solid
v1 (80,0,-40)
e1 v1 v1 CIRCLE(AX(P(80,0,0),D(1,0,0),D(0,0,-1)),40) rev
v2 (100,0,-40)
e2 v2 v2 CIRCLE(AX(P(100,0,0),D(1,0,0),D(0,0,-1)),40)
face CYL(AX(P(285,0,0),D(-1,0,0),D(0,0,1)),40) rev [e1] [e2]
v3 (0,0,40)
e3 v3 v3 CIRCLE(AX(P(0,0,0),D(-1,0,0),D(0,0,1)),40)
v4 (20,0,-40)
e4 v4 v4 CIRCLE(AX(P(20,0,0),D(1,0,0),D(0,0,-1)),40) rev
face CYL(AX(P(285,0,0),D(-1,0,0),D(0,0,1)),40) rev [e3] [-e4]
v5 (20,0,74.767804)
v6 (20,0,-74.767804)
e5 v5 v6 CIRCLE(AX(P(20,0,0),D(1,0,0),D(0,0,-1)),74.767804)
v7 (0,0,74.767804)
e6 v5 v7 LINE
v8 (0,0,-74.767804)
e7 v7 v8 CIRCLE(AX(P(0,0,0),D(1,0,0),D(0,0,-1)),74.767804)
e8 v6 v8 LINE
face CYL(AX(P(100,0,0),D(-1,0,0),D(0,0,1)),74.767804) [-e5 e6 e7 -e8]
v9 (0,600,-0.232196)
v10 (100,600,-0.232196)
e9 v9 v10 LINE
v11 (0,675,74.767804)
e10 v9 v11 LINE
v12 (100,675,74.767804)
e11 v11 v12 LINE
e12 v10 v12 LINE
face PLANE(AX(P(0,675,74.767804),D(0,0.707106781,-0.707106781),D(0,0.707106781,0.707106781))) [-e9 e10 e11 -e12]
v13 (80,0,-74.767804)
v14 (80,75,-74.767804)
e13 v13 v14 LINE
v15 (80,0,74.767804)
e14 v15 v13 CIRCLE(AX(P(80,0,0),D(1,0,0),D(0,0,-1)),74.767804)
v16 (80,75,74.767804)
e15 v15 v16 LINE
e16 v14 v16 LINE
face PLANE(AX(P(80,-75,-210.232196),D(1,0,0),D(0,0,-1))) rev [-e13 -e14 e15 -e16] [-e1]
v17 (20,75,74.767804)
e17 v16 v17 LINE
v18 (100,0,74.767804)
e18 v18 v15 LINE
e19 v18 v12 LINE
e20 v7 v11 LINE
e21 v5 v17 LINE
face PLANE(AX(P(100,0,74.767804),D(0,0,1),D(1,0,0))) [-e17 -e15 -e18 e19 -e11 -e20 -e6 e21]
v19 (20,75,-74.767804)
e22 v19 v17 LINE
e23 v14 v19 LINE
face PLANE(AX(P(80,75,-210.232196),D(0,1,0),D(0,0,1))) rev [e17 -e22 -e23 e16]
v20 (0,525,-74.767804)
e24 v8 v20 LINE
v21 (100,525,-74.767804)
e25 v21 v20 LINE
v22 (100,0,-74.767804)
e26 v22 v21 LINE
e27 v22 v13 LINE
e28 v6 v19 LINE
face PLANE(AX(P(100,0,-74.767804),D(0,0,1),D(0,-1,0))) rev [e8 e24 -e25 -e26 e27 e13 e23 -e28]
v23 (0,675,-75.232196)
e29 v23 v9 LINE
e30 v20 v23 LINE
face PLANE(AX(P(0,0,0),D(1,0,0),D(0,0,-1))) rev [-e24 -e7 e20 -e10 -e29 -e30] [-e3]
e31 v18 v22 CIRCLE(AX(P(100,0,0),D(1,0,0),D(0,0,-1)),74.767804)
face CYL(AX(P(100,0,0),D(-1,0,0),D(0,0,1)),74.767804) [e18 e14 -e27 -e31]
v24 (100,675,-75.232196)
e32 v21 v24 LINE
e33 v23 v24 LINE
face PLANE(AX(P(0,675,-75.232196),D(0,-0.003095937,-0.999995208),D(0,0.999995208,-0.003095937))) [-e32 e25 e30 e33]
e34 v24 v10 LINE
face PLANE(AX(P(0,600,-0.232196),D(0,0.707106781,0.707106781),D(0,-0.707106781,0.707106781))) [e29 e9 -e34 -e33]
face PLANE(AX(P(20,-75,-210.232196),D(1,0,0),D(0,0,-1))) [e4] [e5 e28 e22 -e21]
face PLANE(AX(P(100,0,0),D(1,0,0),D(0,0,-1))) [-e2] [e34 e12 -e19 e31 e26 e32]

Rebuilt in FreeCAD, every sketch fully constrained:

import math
import FreeCAD as App
import Part
import Sketcher

doc = App.newDocument("Part")
params = doc.addObject("Spreadsheet::Sheet", "Params")
for row, (alias, value) in enumerate([
    ("sketch1_width", "600 mm"),
    ("pad1_length", "100 mm"),
    ("sketch2_width", "75 mm"),
    ("pocket1_length", "20 mm"),
    ("sketch3_width", "75 mm"),
    ("pocket2_length", "20 mm"),
    ("sketch4_diameter", "80 mm"),
    ("pad2_length", "20 mm"),
    ("sketch5_diameter", "80 mm"),
    ("pad3_length", "20 mm"),
    ("sketch6_diameter", "80 mm"),
    ("pocket3_length", "285 mm"),
    ("sketch7_width", "60 mm"),
    ("sketch7_height", "150 mm"),
    ("pocket4_length", "285 mm"),
    ("sketch8_width", "100 mm"),
    ("pocket5_length", "285 mm"),
    ("sketch9_width", "150 mm"),
    ("pad4_length", "100 mm"),
], start=1):
    params.set(f"A{row}", alias)
    params.set(f"B{row}", "=" + value)
    params.setAlias(f"B{row}", alias)

body = doc.addObject("PartDesign::Body", "Body")

# Sketch on YZ plane
sketch1 = body.newObject("Sketcher::SketchObject", "Sketch")
sketch1.AttachmentSupport = (doc.getObject("YZ_Plane"), [""])
sketch1.MapMode = "FlatFace"
sketch1.addGeometry(Part.LineSegment(App.Vector(600, 75, 0), App.Vector(0, 75, 0)), False)
sketch1.addGeometry(Part.ArcOfCircle(Part.Circle(App.Vector(0, 0, 0), App.Vector(0, 0, 1), 75), math.radians(90), math.radians(270)), False)
sketch1.addGeometry(Part.LineSegment(App.Vector(0, -75, 0), App.Vector(600, -75, 0)), False)
sketch1.addGeometry(Part.ArcOfCircle(Part.Circle(App.Vector(600, 0, 0), App.Vector(0, 0, 1), 75), math.radians(-90), math.radians(90)), False)
sketch1.addConstraint(Sketcher.Constraint("Tangent", 0, 2, 1, 1))
sketch1.addConstraint(Sketcher.Constraint("Tangent", 1, 2, 2, 1))
sketch1.addConstraint(Sketcher.Constraint("Tangent", 2, 2, 3, 1))
sketch1.addConstraint(Sketcher.Constraint("Tangent", 3, 2, 0, 1))
sketch1.addConstraint(Sketcher.Constraint("Horizontal", 0))
sketch1.addConstraint(Sketcher.Constraint("Horizontal", 2))
sketch1.addConstraint(Sketcher.Constraint("Coincident", 1, 3, -1, 1))
sketch1.addConstraint(Sketcher.Constraint("DistanceX", 0, 2, 0, 1, 600.0))
sketch1.addConstraint(Sketcher.Constraint("Radius", 1, 74.767804))
sketch1.setExpression("Constraints[7]", "Params.sketch1_width")
pad1 = body.newObject("PartDesign::Pad", "Pad")
pad1.Profile = sketch1
pad1.setExpression("Length", "Params.pad1_length")

# Sketch on YZ plane
sketch2 = body.newObject("Sketcher::SketchObject", "Sketch001")
sketch2.AttachmentSupport = (doc.getObject("YZ_Plane"), [""])
sketch2.MapMode = "FlatFace"
sketch2.addGeometry(Part.LineSegment(App.Vector(600, -75, 0), App.Vector(525, -75, 0)), False)
sketch2.addGeometry(Part.LineSegment(App.Vector(525, -75, 0), App.Vector(525, 75, 0)), False)
sketch2.addGeometry(Part.LineSegment(App.Vector(525, 75, 0), App.Vector(600, 75, 0)), False)
sketch2.addGeometry(Part.ArcOfCircle(Part.Circle(App.Vector(600, 0, 0), App.Vector(0, 0, 1), 75), math.radians(-90), math.radians(90)), False)
sketch2.addConstraint(Sketcher.Constraint("Coincident", 0, 2, 1, 1))
sketch2.addConstraint(Sketcher.Constraint("Coincident", 1, 2, 2, 1))
sketch2.addConstraint(Sketcher.Constraint("Tangent", 2, 2, 3, 2))
sketch2.addConstraint(Sketcher.Constraint("Tangent", 3, 1, 0, 1))
sketch2.addConstraint(Sketcher.Constraint("Horizontal", 0))
sketch2.addConstraint(Sketcher.Constraint("Vertical", 1))
sketch2.addConstraint(Sketcher.Constraint("Horizontal", 2))
sketch2.addConstraint(Sketcher.Constraint("PointOnObject", 3, 3, -1))
sketch2.addConstraint(Sketcher.Constraint("DistanceX", 0, 2, 0, 1, 75.0))
sketch2.addConstraint(Sketcher.Constraint("DistanceX", -1, 1, 3, 3, 600.0))
sketch2.addConstraint(Sketcher.Constraint("Radius", 3, 74.767804))
sketch2.setExpression("Constraints[8]", "Params.sketch2_width")
pocket1 = body.newObject("PartDesign::Pocket", "Pocket")
pocket1.Profile = sketch2
pocket1.setExpression("Length", "Params.pocket1_length")
pocket1.Reversed = True

# Sketch on YZ plane
sketch3 = body.newObject("Sketcher::SketchObject", "Sketch002")
sketch3.AttachmentSupport = (doc.getObject("YZ_Plane"), [""])
sketch3.MapMode = "FlatFace"
sketch3.AttachmentOffset = App.Placement(App.Vector(0, 0, 80), App.Rotation())
sketch3.addGeometry(Part.LineSegment(App.Vector(600, 75, 0), App.Vector(525, 75, 0)), False)
sketch3.addGeometry(Part.LineSegment(App.Vector(525, 75, 0), App.Vector(525, -75, 0)), False)
sketch3.addGeometry(Part.LineSegment(App.Vector(525, -75, 0), App.Vector(600, -75, 0)), False)
sketch3.addGeometry(Part.ArcOfCircle(Part.Circle(App.Vector(600, 0, 0), App.Vector(0, 0, 1), 75), math.radians(-90), math.radians(90)), False)
sketch3.addConstraint(Sketcher.Constraint("Coincident", 0, 2, 1, 1))
sketch3.addConstraint(Sketcher.Constraint("Coincident", 1, 2, 2, 1))
sketch3.addConstraint(Sketcher.Constraint("Tangent", 2, 2, 3, 1))
sketch3.addConstraint(Sketcher.Constraint("Tangent", 3, 2, 0, 1))
sketch3.addConstraint(Sketcher.Constraint("Horizontal", 0))
sketch3.addConstraint(Sketcher.Constraint("Vertical", 1))
sketch3.addConstraint(Sketcher.Constraint("Horizontal", 2))
sketch3.addConstraint(Sketcher.Constraint("PointOnObject", 3, 3, -1))
sketch3.addConstraint(Sketcher.Constraint("DistanceX", 0, 2, 0, 1, 75.0))
sketch3.addConstraint(Sketcher.Constraint("DistanceX", -1, 1, 3, 3, 600.0))
sketch3.addConstraint(Sketcher.Constraint("Radius", 3, 74.767804))
sketch3.setExpression("Constraints[8]", "Params.sketch3_width")
pocket2 = body.newObject("PartDesign::Pocket", "Pocket001")
pocket2.Profile = sketch3
pocket2.setExpression("Length", "Params.pocket2_length")
pocket2.Reversed = True

# Sketch on YZ plane
sketch4 = body.newObject("Sketcher::SketchObject", "Sketch003")
sketch4.AttachmentSupport = (doc.getObject("YZ_Plane"), [""])
sketch4.MapMode = "FlatFace"
sketch4.AttachmentOffset = App.Placement(App.Vector(0, 0, 80), App.Rotation())
sketch4.addGeometry(Part.Circle(App.Vector(600, 0, 0), App.Vector(0, 0, 1), 40), False)
sketch4.addConstraint(Sketcher.Constraint("PointOnObject", 0, 3, -1))
sketch4.addConstraint(Sketcher.Constraint("Diameter", 0, 80.0))
sketch4.addConstraint(Sketcher.Constraint("DistanceX", -1, 1, 0, 3, 600.0))
sketch4.setExpression("Constraints[1]", "Params.sketch4_diameter")
pad2 = body.newObject("PartDesign::Pad", "Pad001")
pad2.Profile = sketch4
pad2.setExpression("Length", "Params.pad2_length")

# Sketch on YZ plane
sketch5 = body.newObject("Sketcher::SketchObject", "Sketch004")
sketch5.AttachmentSupport = (doc.getObject("YZ_Plane"), [""])
sketch5.MapMode = "FlatFace"
sketch5.addGeometry(Part.Circle(App.Vector(600, 0, 0), App.Vector(0, 0, 1), 40), False)
sketch5.addConstraint(Sketcher.Constraint("PointOnObject", 0, 3, -1))
sketch5.addConstraint(Sketcher.Constraint("Diameter", 0, 80.0))
sketch5.addConstraint(Sketcher.Constraint("DistanceX", -1, 1, 0, 3, 600.0))
sketch5.setExpression("Constraints[1]", "Params.sketch5_diameter")
pad3 = body.newObject("PartDesign::Pad", "Pad002")
pad3.Profile = sketch5
pad3.setExpression("Length", "Params.pad3_length")

# Sketch on YZ plane
sketch6 = body.newObject("Sketcher::SketchObject", "Sketch005")
sketch6.AttachmentSupport = (doc.getObject("YZ_Plane"), [""])
sketch6.MapMode = "FlatFace"
sketch6.addGeometry(Part.Circle(App.Vector(0, 0, 0), App.Vector(0, 0, 1), 40), False)
sketch6.addConstraint(Sketcher.Constraint("Coincident", 0, 3, -1, 1))
sketch6.addConstraint(Sketcher.Constraint("Diameter", 0, 80.0))
sketch6.setExpression("Constraints[1]", "Params.sketch6_diameter")
pocket3 = body.newObject("PartDesign::Pocket", "Pocket002")
pocket3.Profile = sketch6
pocket3.setExpression("Length", "Params.pocket3_length")
pocket3.Reversed = True

# Sketch on XY plane
sketch7 = body.newObject("Sketcher::SketchObject", "Sketch006")
sketch7.AttachmentSupport = (doc.getObject("XY_Plane"), [""])
sketch7.MapMode = "FlatFace"
sketch7.AttachmentOffset = App.Placement(App.Vector(0, 0, 74.767804), App.Rotation())
sketch7.addGeometry(Part.LineSegment(App.Vector(20, 75, 0), App.Vector(20, -75, 0)), False)
sketch7.addGeometry(Part.LineSegment(App.Vector(20, -75, 0), App.Vector(80, -75, 0)), False)
sketch7.addGeometry(Part.LineSegment(App.Vector(80, -75, 0), App.Vector(80, 75, 0)), False)
sketch7.addGeometry(Part.LineSegment(App.Vector(80, 75, 0), App.Vector(20, 75, 0)), False)
sketch7.addConstraint(Sketcher.Constraint("Coincident", 0, 2, 1, 1))
sketch7.addConstraint(Sketcher.Constraint("Coincident", 1, 2, 2, 1))
sketch7.addConstraint(Sketcher.Constraint("Coincident", 2, 2, 3, 1))
sketch7.addConstraint(Sketcher.Constraint("Coincident", 3, 2, 0, 1))
sketch7.addConstraint(Sketcher.Constraint("Vertical", 0))
sketch7.addConstraint(Sketcher.Constraint("Horizontal", 1))
sketch7.addConstraint(Sketcher.Constraint("Vertical", 2))
sketch7.addConstraint(Sketcher.Constraint("Horizontal", 3))
sketch7.addConstraint(Sketcher.Constraint("DistanceX", 1, 1, 1, 2, 60.0))
sketch7.addConstraint(Sketcher.Constraint("DistanceY", 0, 2, 0, 1, 150.0))
sketch7.addConstraint(Sketcher.Constraint("DistanceX", -1, 1, 0, 2, 20.0))
sketch7.addConstraint(Sketcher.Constraint("DistanceY", 0, 2, -1, 1, 75.0))
sketch7.setExpression("Constraints[8]", "Params.sketch7_width")
sketch7.setExpression("Constraints[9]", "Params.sketch7_height")
pocket4 = body.newObject("PartDesign::Pocket", "Pocket003")
pocket4.Profile = sketch7
pocket4.setExpression("Length", "Params.pocket4_length")

# Sketch on XY plane
sketch8 = body.newObject("Sketcher::SketchObject", "Sketch007")
sketch8.AttachmentSupport = (doc.getObject("XY_Plane"), [""])
sketch8.MapMode = "FlatFace"
sketch8.AttachmentOffset = App.Placement(App.Vector(0, 0, 74.767804), App.Rotation())
sketch8.addGeometry(Part.LineSegment(App.Vector(0, 821, 0), App.Vector(0, 525, 0)), False)
sketch8.addGeometry(Part.LineSegment(App.Vector(0, 525, 0), App.Vector(100, 525, 0)), False)
sketch8.addGeometry(Part.LineSegment(App.Vector(100, 525, 0), App.Vector(100, 821, 0)), False)
sketch8.addGeometry(Part.LineSegment(App.Vector(100, 821, 0), App.Vector(0, 821, 0)), False)
sketch8.addConstraint(Sketcher.Constraint("Coincident", 0, 2, 1, 1))
sketch8.addConstraint(Sketcher.Constraint("Coincident", 1, 2, 2, 1))
sketch8.addConstraint(Sketcher.Constraint("Coincident", 2, 2, 3, 1))
sketch8.addConstraint(Sketcher.Constraint("Coincident", 3, 2, 0, 1))
sketch8.addConstraint(Sketcher.Constraint("Vertical", 0))
sketch8.addConstraint(Sketcher.Constraint("Horizontal", 1))
sketch8.addConstraint(Sketcher.Constraint("Vertical", 2))
sketch8.addConstraint(Sketcher.Constraint("Horizontal", 3))
sketch8.addConstraint(Sketcher.Constraint("PointOnObject", 0, 2, -2))
sketch8.addConstraint(Sketcher.Constraint("DistanceX", 1, 1, 1, 2, 100.0))
sketch8.addConstraint(Sketcher.Constraint("DistanceY", -1, 1, 0, 2, 525.0))
sketch8.addConstraint(Sketcher.Constraint("DistanceY", 0, 2, 0, 1, 295.959975))
sketch8.setExpression("Constraints[9]", "Params.sketch8_width")
pocket5 = body.newObject("PartDesign::Pocket", "Pocket004")
pocket5.Profile = sketch8
pocket5.setExpression("Length", "Params.pocket5_length")

# Sketch on YZ plane
sketch9 = body.newObject("Sketcher::SketchObject", "Sketch008")
sketch9.AttachmentSupport = (doc.getObject("YZ_Plane"), [""])
sketch9.MapMode = "FlatFace"
sketch9.AttachmentOffset = App.Placement(App.Vector(0, 0, 100), App.Rotation())
sketch9.addGeometry(Part.LineSegment(App.Vector(675, 75, 0), App.Vector(525, 75, 0)), False)
sketch9.addGeometry(Part.LineSegment(App.Vector(525, 75, 0), App.Vector(525, -75, 0)), False)
sketch9.addGeometry(Part.LineSegment(App.Vector(525, -75, 0), App.Vector(675, -75, 0)), False)
sketch9.addGeometry(Part.LineSegment(App.Vector(675, -75, 0), App.Vector(600, 0, 0)), False)
sketch9.addGeometry(Part.LineSegment(App.Vector(600, 0, 0), App.Vector(675, 75, 0)), False)
sketch9.addConstraint(Sketcher.Constraint("Coincident", 0, 2, 1, 1))
sketch9.addConstraint(Sketcher.Constraint("Coincident", 1, 2, 2, 1))
sketch9.addConstraint(Sketcher.Constraint("Coincident", 2, 2, 3, 1))
sketch9.addConstraint(Sketcher.Constraint("Coincident", 3, 2, 4, 1))
sketch9.addConstraint(Sketcher.Constraint("Coincident", 4, 2, 0, 1))
sketch9.addConstraint(Sketcher.Constraint("Horizontal", 0))
sketch9.addConstraint(Sketcher.Constraint("Vertical", 1))
sketch9.addConstraint(Sketcher.Constraint("Perpendicular", 3, 4))
sketch9.addConstraint(Sketcher.Constraint("Vertical", 2, 2, 4, 2))
sketch9.addConstraint(Sketcher.Constraint("Equal", 3, 4))
sketch9.addConstraint(Sketcher.Constraint("DistanceX", 0, 2, 0, 1, 150.0))
sketch9.addConstraint(Sketcher.Constraint("DistanceX", -1, 1, 0, 2, 525.0))
sketch9.addConstraint(Sketcher.Constraint("DistanceX", -1, 1, 3, 2, 600.0))
sketch9.addConstraint(Sketcher.Constraint("DistanceY", 1, 2, 1, 1, 149.535607))
sketch9.addConstraint(Sketcher.Constraint("DistanceY", -1, 1, 0, 2, 74.767804))
sketch9.setExpression("Constraints[10]", "Params.sketch9_width")
pad4 = body.newObject("PartDesign::Pad", "Pad003")
pad4.Profile = sketch9
pad4.setExpression("Length", "Params.pad4_length")
pad4.Reversed = True

doc.recompute()
